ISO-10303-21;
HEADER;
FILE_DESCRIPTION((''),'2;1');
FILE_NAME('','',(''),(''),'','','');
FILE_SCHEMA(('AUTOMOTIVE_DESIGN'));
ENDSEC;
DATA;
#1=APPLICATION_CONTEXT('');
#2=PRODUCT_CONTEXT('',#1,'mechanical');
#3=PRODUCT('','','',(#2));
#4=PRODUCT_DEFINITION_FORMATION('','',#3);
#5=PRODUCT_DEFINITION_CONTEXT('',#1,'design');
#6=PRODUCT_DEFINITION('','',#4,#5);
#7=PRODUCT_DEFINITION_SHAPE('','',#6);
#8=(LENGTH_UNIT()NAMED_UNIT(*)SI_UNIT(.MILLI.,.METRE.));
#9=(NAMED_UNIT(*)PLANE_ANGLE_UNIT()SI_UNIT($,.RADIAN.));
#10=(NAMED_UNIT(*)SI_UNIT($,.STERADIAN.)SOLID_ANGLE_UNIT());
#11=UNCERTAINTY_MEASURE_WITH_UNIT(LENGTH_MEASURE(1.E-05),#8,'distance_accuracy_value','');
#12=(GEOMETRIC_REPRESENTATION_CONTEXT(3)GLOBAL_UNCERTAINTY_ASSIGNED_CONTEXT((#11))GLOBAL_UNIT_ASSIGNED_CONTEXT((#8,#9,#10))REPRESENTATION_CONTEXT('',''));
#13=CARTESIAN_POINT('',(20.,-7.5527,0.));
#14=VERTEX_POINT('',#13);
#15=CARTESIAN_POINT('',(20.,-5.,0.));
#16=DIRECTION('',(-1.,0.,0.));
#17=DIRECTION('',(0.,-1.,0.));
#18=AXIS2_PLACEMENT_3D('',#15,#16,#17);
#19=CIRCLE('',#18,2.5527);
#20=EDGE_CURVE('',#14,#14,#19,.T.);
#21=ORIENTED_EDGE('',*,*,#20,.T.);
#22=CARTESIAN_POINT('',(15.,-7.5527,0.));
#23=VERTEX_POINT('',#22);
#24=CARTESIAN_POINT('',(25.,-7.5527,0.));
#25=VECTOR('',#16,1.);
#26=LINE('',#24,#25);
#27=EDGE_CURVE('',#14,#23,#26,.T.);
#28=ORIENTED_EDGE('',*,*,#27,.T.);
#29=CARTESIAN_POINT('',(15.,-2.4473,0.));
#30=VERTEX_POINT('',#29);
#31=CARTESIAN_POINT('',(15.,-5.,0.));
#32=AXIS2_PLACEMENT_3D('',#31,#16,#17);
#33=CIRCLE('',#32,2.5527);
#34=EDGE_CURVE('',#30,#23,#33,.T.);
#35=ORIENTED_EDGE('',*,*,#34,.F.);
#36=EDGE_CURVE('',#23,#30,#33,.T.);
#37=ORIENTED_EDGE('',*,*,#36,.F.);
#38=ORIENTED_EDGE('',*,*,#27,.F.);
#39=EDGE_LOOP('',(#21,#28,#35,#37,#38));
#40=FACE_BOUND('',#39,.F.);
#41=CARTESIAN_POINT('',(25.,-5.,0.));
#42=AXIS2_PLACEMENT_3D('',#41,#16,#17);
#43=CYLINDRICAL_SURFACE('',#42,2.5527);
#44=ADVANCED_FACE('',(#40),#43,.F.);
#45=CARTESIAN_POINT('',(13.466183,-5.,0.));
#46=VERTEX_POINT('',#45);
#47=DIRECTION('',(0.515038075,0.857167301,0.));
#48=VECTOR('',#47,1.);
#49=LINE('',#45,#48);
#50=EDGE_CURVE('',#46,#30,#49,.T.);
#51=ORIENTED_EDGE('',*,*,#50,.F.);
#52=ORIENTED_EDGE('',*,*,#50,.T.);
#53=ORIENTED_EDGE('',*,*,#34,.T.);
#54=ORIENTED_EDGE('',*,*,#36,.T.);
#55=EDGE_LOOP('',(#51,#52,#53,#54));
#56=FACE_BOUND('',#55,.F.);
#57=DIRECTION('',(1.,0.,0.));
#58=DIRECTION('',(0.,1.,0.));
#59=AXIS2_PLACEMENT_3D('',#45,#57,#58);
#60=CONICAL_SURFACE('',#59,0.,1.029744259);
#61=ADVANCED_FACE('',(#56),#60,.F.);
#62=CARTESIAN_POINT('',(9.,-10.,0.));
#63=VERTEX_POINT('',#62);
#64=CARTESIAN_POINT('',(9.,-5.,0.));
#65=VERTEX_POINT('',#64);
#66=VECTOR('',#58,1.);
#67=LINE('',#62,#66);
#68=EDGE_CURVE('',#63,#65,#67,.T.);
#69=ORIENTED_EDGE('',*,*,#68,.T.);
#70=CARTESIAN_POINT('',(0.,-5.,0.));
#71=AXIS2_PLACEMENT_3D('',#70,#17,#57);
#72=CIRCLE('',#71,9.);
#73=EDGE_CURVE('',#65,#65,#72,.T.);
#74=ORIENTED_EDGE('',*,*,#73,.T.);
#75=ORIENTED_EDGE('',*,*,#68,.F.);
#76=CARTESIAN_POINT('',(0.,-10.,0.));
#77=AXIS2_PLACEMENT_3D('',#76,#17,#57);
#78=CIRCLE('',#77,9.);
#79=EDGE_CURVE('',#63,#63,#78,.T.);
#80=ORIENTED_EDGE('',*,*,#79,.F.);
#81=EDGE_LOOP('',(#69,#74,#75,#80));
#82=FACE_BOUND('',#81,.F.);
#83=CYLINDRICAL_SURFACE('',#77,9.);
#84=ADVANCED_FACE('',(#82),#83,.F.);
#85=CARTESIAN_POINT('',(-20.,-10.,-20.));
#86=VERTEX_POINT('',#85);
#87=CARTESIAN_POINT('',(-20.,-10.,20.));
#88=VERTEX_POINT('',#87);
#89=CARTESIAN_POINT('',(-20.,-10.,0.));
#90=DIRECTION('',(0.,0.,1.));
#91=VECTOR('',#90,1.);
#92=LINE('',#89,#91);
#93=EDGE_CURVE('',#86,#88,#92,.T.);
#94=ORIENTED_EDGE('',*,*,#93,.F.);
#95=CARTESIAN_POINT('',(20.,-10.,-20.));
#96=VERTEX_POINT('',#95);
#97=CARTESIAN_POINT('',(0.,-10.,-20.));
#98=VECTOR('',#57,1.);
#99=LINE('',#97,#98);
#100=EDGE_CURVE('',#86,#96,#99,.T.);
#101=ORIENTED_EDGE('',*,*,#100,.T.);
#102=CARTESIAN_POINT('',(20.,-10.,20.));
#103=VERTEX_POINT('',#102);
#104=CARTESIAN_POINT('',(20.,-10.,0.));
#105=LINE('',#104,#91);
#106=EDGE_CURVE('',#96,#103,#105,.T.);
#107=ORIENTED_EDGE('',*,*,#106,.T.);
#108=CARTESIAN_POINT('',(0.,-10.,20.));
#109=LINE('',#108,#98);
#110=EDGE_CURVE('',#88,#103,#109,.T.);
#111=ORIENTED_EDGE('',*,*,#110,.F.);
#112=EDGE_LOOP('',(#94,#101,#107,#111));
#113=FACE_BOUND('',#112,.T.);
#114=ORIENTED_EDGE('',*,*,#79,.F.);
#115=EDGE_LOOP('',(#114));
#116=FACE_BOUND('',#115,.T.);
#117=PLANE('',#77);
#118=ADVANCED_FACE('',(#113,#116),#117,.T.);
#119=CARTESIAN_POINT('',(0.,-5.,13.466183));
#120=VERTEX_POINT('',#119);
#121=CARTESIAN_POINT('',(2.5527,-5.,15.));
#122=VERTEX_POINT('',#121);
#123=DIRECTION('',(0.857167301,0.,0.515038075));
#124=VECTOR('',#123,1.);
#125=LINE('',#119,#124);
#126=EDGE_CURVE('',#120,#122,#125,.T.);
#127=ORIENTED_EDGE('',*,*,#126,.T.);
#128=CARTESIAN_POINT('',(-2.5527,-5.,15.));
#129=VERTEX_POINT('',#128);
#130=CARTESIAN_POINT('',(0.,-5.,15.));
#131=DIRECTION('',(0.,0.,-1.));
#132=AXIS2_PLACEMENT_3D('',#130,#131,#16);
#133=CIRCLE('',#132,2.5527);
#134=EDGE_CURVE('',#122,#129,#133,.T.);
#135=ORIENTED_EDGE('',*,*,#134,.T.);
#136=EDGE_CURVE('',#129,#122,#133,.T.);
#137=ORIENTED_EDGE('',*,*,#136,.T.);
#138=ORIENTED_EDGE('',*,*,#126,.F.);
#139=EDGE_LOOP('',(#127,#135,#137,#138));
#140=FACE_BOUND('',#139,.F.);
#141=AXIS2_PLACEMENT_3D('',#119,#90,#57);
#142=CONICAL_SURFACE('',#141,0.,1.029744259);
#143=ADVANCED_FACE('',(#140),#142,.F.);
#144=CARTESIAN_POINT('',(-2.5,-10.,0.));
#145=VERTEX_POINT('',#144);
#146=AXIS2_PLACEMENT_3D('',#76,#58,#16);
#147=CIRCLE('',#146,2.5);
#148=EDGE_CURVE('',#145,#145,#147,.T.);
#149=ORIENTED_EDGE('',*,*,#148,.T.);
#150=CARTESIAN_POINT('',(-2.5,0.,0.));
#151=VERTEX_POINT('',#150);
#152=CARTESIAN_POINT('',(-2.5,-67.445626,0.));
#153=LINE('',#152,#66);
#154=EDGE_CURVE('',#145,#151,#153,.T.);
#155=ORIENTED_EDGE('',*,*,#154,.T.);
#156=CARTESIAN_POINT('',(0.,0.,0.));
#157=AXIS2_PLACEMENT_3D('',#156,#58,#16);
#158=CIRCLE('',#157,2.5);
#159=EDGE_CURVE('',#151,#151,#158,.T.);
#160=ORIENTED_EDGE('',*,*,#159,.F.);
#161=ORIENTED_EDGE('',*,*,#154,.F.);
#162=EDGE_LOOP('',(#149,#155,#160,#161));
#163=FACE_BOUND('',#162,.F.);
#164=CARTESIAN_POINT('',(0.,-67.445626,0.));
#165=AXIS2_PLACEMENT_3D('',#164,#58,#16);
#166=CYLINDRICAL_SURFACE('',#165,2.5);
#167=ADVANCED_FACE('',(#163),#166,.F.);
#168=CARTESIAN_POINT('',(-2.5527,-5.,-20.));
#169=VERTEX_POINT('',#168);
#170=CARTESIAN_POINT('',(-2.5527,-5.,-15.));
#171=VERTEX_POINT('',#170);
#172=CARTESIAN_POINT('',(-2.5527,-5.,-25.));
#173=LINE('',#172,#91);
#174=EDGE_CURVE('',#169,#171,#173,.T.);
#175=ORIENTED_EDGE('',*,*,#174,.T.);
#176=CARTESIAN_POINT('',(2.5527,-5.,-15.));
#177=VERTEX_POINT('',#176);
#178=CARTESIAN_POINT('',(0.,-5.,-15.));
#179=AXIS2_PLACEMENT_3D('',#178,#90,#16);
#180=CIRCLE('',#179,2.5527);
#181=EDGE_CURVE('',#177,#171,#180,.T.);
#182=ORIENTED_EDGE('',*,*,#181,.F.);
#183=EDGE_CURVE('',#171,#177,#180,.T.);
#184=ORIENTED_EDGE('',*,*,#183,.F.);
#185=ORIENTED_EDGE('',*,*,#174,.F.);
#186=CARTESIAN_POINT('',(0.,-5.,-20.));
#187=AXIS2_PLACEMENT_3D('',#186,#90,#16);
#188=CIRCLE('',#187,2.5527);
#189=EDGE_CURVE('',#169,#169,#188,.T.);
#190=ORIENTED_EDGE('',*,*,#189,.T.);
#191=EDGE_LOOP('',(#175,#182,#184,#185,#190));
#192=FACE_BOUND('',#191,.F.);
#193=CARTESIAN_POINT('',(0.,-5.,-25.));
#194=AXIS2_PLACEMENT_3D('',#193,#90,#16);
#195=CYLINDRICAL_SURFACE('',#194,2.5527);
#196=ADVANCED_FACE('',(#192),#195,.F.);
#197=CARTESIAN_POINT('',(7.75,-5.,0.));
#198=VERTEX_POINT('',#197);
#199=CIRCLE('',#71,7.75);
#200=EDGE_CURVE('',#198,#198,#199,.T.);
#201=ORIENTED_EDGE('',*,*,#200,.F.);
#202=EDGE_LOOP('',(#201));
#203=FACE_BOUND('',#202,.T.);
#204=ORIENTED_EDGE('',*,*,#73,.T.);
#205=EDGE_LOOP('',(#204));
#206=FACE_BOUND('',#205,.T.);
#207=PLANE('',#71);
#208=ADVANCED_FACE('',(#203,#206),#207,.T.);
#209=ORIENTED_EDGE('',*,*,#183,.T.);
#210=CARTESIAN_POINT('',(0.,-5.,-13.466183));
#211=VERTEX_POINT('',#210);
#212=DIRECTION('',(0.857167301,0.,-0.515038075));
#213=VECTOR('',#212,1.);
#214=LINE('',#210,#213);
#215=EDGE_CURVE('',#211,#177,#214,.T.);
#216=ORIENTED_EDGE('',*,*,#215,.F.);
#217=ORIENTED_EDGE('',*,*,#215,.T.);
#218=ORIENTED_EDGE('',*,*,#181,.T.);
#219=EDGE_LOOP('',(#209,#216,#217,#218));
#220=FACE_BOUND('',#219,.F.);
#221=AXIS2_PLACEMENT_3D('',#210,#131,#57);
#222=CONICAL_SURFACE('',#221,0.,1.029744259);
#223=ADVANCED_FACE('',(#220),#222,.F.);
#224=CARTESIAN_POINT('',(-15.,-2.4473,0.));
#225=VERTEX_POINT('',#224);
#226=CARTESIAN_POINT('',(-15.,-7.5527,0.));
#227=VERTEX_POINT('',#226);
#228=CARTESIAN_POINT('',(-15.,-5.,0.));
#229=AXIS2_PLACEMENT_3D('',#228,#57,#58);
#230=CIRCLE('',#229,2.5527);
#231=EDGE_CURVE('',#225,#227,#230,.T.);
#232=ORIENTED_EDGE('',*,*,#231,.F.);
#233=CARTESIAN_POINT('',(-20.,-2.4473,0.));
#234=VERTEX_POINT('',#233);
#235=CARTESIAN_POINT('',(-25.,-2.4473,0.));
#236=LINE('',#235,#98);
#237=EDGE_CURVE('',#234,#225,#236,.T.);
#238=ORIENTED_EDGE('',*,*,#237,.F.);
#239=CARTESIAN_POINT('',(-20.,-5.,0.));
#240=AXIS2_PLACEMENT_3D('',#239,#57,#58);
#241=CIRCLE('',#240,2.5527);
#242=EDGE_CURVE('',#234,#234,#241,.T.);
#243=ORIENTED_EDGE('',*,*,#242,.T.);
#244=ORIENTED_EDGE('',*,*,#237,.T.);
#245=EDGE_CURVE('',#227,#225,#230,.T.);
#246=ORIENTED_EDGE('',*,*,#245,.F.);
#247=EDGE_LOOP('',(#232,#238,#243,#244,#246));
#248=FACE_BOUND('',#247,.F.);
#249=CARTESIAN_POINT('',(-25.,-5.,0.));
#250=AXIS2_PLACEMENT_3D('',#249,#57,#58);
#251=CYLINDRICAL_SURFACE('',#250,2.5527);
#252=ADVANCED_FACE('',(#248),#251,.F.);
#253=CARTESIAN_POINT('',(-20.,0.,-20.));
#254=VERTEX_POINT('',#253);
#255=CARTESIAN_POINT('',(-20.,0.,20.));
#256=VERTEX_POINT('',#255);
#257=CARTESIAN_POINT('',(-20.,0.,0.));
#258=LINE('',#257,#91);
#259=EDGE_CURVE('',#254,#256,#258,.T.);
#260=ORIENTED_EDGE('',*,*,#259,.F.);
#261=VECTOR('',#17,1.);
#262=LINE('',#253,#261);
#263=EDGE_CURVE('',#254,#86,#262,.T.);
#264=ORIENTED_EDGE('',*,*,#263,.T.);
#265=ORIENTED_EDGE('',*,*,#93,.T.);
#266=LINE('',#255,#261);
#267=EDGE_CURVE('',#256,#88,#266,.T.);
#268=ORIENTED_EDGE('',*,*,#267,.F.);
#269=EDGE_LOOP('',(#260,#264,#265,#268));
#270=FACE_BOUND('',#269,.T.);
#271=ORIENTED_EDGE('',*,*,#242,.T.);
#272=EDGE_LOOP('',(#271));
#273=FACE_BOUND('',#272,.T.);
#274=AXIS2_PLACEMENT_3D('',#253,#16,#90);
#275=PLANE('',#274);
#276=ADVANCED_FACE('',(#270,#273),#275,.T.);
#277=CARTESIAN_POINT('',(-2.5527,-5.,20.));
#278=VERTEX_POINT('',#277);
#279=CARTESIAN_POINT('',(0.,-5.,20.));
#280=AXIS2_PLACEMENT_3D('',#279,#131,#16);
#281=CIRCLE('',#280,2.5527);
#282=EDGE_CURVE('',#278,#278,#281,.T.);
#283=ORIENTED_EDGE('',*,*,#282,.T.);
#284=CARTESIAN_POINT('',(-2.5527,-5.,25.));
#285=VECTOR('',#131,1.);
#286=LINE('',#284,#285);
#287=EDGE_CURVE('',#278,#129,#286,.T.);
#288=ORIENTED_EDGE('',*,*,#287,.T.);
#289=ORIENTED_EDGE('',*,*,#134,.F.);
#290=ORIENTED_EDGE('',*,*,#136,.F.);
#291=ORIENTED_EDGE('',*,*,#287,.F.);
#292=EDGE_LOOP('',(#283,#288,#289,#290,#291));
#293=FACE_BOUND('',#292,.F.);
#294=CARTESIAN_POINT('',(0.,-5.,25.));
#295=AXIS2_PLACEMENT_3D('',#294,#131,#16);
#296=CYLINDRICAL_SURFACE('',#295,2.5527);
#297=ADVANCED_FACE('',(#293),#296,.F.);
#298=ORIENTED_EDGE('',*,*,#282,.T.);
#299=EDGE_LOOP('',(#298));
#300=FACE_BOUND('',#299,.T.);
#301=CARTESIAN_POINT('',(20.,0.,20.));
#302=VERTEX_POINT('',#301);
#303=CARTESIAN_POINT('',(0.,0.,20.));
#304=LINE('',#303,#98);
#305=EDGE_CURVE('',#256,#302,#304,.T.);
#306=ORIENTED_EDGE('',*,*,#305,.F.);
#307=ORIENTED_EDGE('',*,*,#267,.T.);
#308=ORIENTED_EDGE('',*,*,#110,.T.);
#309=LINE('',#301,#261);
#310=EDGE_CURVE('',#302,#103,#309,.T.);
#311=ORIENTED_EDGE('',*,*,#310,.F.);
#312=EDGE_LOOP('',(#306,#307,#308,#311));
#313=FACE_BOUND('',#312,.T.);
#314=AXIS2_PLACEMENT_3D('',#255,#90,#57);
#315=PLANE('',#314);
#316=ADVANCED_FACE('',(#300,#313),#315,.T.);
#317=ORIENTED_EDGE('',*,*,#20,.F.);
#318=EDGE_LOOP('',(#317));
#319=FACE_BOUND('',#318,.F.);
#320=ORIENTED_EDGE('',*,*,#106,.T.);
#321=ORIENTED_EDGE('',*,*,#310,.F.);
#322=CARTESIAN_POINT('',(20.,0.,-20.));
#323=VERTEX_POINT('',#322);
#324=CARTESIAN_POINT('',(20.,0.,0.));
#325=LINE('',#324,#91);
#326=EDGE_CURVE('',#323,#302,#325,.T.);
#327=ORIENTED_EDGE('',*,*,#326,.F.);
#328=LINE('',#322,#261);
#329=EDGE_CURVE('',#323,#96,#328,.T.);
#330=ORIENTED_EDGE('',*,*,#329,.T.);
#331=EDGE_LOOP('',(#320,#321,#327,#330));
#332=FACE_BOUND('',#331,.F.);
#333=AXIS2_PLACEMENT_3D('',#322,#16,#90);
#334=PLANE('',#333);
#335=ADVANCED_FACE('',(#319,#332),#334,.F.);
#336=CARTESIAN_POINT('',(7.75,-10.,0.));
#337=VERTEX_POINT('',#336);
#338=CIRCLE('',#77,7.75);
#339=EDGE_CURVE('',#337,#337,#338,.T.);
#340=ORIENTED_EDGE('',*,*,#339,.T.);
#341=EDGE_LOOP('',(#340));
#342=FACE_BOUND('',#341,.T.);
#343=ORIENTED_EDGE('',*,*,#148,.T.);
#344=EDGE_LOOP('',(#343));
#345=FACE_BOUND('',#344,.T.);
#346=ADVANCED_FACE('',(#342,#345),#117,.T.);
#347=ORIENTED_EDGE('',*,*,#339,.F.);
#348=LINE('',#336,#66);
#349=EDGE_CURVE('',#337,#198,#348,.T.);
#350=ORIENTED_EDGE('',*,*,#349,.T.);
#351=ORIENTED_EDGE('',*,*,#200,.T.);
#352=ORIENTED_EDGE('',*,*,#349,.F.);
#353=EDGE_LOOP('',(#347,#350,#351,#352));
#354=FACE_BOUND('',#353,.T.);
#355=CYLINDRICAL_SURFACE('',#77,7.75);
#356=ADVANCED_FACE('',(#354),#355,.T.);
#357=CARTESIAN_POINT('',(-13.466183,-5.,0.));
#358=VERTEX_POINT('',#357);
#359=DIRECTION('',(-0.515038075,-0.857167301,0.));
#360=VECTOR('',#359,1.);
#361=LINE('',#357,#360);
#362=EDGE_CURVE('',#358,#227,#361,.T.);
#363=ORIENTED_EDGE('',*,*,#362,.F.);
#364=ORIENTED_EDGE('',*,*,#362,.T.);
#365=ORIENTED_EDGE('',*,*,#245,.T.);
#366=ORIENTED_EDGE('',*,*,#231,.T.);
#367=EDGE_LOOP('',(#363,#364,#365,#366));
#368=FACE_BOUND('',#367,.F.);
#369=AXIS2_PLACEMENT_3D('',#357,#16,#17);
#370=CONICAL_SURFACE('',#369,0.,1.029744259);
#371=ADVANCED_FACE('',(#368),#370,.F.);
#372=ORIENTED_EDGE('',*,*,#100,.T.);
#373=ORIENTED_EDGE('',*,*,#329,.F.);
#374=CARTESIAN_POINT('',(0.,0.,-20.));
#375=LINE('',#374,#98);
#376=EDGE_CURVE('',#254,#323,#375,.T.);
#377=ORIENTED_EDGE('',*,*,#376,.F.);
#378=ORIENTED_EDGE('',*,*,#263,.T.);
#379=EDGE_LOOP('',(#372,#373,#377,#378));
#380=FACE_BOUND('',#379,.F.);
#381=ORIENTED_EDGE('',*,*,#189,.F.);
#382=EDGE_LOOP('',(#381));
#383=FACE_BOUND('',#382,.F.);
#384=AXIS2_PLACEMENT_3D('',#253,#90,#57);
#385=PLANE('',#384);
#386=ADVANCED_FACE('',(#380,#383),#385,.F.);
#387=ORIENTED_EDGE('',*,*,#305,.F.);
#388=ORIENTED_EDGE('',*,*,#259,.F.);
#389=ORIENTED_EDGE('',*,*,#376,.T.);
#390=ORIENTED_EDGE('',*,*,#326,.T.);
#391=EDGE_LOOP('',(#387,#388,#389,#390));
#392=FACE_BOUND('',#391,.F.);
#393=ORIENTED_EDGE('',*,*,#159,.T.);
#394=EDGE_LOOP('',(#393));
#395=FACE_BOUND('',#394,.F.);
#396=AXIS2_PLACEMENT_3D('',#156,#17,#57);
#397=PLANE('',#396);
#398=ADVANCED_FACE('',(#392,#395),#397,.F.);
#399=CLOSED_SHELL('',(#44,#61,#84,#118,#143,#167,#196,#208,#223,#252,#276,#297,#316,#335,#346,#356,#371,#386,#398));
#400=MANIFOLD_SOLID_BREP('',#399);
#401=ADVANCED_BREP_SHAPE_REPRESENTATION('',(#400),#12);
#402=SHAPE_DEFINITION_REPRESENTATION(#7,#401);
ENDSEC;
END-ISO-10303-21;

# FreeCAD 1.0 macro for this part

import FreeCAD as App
import Part
import Sketcher
from FreeCAD import Vector

doc = App.newDocument("Part")
body = doc.addObject("PartDesign::Body", "Body")

# Sketch on XZ plane
sketch1 = body.newObject("Sketcher::SketchObject", "Sketch")
sketch1.AttachmentSupport = (doc.getObject("XZ_Plane"), [""])
sketch1.MapMode = "FlatFace"
sketch1.addGeometry([
    Part.LineSegment(Vector(-20, 20, 0), Vector(-20, -20, 0)),
    Part.LineSegment(Vector(-20, -20, 0), Vector(20, -20, 0)),
    Part.LineSegment(Vector(20, -20, 0), Vector(20, 20, 0)),
    Part.LineSegment(Vector(20, 20, 0), Vector(-20, 20, 0)),
], False)
sketch1.addConstraint([
    Sketcher.Constraint("Coincident", 0, 2, 1, 1),
    Sketcher.Constraint("Coincident", 1, 2, 2, 1),
    Sketcher.Constraint("Coincident", 2, 2, 3, 1),
    Sketcher.Constraint("Coincident", 3, 2, 0, 1),
    Sketcher.Constraint("Vertical", 0),
    Sketcher.Constraint("Horizontal", 1),
    Sketcher.Constraint("Vertical", 2),
    Sketcher.Constraint("Horizontal", 3),
    Sketcher.Constraint("Symmetric", 0, 2, 2, 2, -1, 1),
    Sketcher.Constraint("Equal", 3, 0),
    Sketcher.Constraint("DistanceX", 1, 1, 1, 2, 40.0),
])
pad1 = body.newObject("PartDesign::Pad", "Pad")
pad1.Profile = sketch1
pad1.Length = 10

# Sketch on XZ plane
sketch2 = body.newObject("Sketcher::SketchObject", "Sketch001")
sketch2.AttachmentSupport = (doc.getObject("XZ_Plane"), [""])
sketch2.MapMode = "FlatFace"
sketch2.AttachmentOffset = App.Placement(Vector(0, 0, 10), App.Rotation())
sketch2.addGeometry(Part.Circle(Vector(0, 0, 0), Vector(0, 0, 1), 2.5), False)
sketch2.addConstraint([
    Sketcher.Constraint("Coincident", 0, 3, -1, 1),
    Sketcher.Constraint("Diameter", 0, 5.0),
])
doc.recompute()
hole = body.newObject("PartDesign::Hole", "Hole")
hole.Profile = sketch2
hole.ThreadType = "None"
hole.Diameter = 5
hole.DepthType = "ThroughAll"

# Sketch on XZ plane
sketch3 = body.newObject("Sketcher::SketchObject", "Sketch002")
sketch3.AttachmentSupport = (doc.getObject("XZ_Plane"), [""])
sketch3.MapMode = "FlatFace"
sketch3.AttachmentOffset = App.Placement(Vector(0, 0, 10), App.Rotation())
sketch3.addGeometry([
    Part.Circle(Vector(0, 0, 0), Vector(0, 0, 1), 9),
    Part.Circle(Vector(0, 0, 0), Vector(0, 0, 1), 8),
], False)
sketch3.addConstraint([
    Sketcher.Constraint("Coincident", 0, 3, -1, 1),
    Sketcher.Constraint("Coincident", 1, 3, -1, 1),
    Sketcher.Constraint("Diameter", 0, 18.0),
    Sketcher.Constraint("Diameter", 1, 15.5),
])
pocket1 = body.newObject("PartDesign::Pocket", "Pocket")
pocket1.Profile = sketch3
pocket1.Length = 5

# Sketch on XY plane
sketch4 = body.newObject("Sketcher::SketchObject", "Sketch003")
sketch4.AttachmentSupport = (doc.getObject("XY_Plane"), [""])
sketch4.MapMode = "FlatFace"
sketch4.AttachmentOffset = App.Placement(Vector(0, 0, 20), App.Rotation())
sketch4.addGeometry(Part.Circle(Vector(0, -5, 0), Vector(0, 0, 1), 2.6), False)
sketch4.addConstraint([
    Sketcher.Constraint("PointOnObject", 0, 3, -2),
    Sketcher.Constraint("DistanceY", 0, 3, -1, 1, 5.0),
    Sketcher.Constraint("Diameter", 0, 5.1054),
])
doc.recompute()
hole2 = body.newObject("PartDesign::Hole", "Hole001")
hole2.Profile = sketch4
hole2.ThreadType = "None"
hole2.Diameter = 5.1054
hole2.DepthType = "Dimension"
hole2.Depth = 5
hole2.DrillPoint = "Angled"
hole2.DrillPointAngle = 118

# Sketch on XY plane
sketch5 = body.newObject("Sketcher::SketchObject", "Sketch004")
sketch5.AttachmentSupport = (doc.getObject("XY_Plane"), [""])
sketch5.MapMode = "FlatFace"
sketch5.AttachmentOffset = App.Placement(Vector(0, 0, -20), App.Rotation())
sketch5.addGeometry(Part.Circle(Vector(0, -5, 0), Vector(0, 0, 1), 2.6), False)
sketch5.addConstraint([
    Sketcher.Constraint("PointOnObject", 0, 3, -2),
    Sketcher.Constraint("DistanceY", 0, 3, -1, 1, 5.0),
    Sketcher.Constraint("Diameter", 0, 5.1054),
])
doc.recompute()
hole3 = body.newObject("PartDesign::Hole", "Hole002")
hole3.Profile = sketch5
hole3.ThreadType = "None"
hole3.Diameter = 5.1054
hole3.DepthType = "Dimension"
hole3.Depth = 5
hole3.DrillPoint = "Angled"
hole3.DrillPointAngle = 118
hole3.Reversed = True

# Sketch on YZ plane
sketch6 = body.newObject("Sketcher::SketchObject", "Sketch005")
sketch6.AttachmentSupport = (doc.getObject("YZ_Plane"), [""])
sketch6.MapMode = "FlatFace"
sketch6.AttachmentOffset = App.Placement(Vector(0, 0, -20), App.Rotation())
sketch6.addGeometry(Part.Circle(Vector(-5, 0, 0), Vector(0, 0, 1), 2.6), False)
sketch6.addConstraint([
    Sketcher.Constraint("PointOnObject", 0, 3, -1),
    Sketcher.Constraint("DistanceX", 0, 3, -1, 1, 5.0),
    Sketcher.Constraint("Diameter", 0, 5.1054),
])
doc.recompute()
hole4 = body.newObject("PartDesign::Hole", "Hole003")
hole4.Profile = sketch6
hole4.ThreadType = "None"
hole4.Diameter = 5.1054
hole4.DepthType = "Dimension"
hole4.Depth = 5
hole4.DrillPoint = "Angled"
hole4.DrillPointAngle = 118
hole4.Reversed = True

# Sketch on YZ plane
sketch7 = body.newObject("Sketcher::SketchObject", "Sketch006")
sketch7.AttachmentSupport = (doc.getObject("YZ_Plane"), [""])
sketch7.MapMode = "FlatFace"
sketch7.AttachmentOffset = App.Placement(Vector(0, 0, 20), App.Rotation())
sketch7.addGeometry(Part.Circle(Vector(-5, 0, 0), Vector(0, 0, 1), 2.6), False)
sketch7.addConstraint([
    Sketcher.Constraint("PointOnObject", 0, 3, -1),
    Sketcher.Constraint("DistanceX", 0, 3, -1, 1, 5.0),
    Sketcher.Constraint("Diameter", 0, 5.1054),
])
doc.recompute()
hole5 = body.newObject("PartDesign::Hole", "Hole004")
hole5.Profile = sketch7
hole5.ThreadType = "None"
hole5.Diameter = 5.1054
hole5.DepthType = "Dimension"
hole5.Depth = 5
hole5.DrillPoint = "Angled"
hole5.DrillPointAngle = 118

doc.recompute()
